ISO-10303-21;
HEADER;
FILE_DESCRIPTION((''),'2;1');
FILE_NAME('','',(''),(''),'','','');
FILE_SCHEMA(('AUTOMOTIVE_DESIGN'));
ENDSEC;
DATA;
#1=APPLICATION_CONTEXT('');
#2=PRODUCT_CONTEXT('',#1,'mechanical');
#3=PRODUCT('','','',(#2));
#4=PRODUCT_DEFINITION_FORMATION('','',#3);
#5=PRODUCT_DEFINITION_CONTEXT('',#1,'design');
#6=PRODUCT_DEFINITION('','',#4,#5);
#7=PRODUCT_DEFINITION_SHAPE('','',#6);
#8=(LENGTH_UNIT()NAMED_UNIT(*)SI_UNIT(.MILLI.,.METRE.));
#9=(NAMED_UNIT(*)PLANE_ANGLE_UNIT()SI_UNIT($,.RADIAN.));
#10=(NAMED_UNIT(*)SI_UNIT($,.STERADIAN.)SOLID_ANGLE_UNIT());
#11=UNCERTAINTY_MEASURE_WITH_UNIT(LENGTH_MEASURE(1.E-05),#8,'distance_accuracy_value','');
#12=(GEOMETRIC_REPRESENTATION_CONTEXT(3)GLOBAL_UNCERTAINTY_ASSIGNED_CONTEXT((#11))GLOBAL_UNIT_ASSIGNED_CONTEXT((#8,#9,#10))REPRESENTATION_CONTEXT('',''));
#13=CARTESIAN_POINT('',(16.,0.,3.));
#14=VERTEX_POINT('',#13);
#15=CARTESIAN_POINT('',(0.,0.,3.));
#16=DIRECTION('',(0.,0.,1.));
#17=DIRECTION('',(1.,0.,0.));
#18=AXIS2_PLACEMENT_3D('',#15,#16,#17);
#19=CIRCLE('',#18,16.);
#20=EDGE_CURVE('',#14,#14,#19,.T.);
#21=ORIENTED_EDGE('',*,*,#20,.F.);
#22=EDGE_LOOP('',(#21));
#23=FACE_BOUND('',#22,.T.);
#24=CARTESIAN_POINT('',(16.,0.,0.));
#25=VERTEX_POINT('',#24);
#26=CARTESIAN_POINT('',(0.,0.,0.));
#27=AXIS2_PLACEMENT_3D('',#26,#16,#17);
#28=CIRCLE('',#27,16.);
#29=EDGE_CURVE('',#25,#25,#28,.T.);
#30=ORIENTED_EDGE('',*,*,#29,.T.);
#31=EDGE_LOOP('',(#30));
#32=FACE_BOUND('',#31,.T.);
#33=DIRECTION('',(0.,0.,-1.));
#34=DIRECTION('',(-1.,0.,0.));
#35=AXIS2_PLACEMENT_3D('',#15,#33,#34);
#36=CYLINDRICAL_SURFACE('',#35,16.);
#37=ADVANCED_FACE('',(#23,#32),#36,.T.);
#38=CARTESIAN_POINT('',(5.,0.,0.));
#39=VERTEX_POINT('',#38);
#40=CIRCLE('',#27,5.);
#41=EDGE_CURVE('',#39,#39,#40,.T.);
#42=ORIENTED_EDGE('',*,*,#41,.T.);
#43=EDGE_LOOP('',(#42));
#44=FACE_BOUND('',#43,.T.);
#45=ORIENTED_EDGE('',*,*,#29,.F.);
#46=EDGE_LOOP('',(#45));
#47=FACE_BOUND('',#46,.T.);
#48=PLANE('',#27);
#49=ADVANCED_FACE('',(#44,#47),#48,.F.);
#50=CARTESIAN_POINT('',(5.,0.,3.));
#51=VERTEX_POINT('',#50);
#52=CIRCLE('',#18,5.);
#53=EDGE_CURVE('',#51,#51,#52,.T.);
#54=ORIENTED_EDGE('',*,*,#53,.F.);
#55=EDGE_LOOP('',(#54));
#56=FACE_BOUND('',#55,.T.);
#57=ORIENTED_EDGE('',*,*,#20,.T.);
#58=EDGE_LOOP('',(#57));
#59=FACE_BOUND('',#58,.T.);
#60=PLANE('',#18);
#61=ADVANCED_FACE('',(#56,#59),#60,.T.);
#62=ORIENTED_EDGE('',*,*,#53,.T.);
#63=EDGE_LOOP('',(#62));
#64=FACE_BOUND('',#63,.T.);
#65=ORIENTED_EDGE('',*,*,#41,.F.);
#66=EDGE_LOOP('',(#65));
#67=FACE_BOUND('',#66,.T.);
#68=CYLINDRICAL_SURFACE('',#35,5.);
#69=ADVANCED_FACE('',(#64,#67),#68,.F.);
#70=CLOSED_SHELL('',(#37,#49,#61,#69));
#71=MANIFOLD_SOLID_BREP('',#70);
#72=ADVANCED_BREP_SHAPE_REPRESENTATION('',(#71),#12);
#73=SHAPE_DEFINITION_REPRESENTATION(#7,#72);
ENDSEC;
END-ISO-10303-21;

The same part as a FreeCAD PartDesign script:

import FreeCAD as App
import Part
import Sketcher
from FreeCAD import Vector
Q = App.Units.Quantity

doc = App.newDocument("Part")
body = doc.addObject("PartDesign::Body", "Body")

sketch1 = body.newObject("Sketcher::SketchObject", "Sketch")
sketch1.AttachmentSupport = (doc.getObject("XY_Plane"), [""])
sketch1.MapMode = "FlatFace"
sketch1.addGeometry(Part.Circle(Vector(0, 0, 0), Vector(0, 0, 1), 16), False)
sketch1.addGeometry(Part.Circle(Vector(0, 0, 0), Vector(0, 0, 1), 5), False)
sketch1.addConstraint(Sketcher.Constraint("Coincident", 0, 3, -1, 1))
sketch1.addConstraint(Sketcher.Constraint("Coincident", 1, 3, -1, 1))
sketch1.addConstraint(Sketcher.Constraint("Diameter", 0, Q("32 mm")))
sketch1.addConstraint(Sketcher.Constraint("Diameter", 1, Q("10 mm")))
pad1 = body.newObject("PartDesign::Pad", "Pad")
pad1.Profile = sketch1
pad1.Length = 3

doc.recompute()
